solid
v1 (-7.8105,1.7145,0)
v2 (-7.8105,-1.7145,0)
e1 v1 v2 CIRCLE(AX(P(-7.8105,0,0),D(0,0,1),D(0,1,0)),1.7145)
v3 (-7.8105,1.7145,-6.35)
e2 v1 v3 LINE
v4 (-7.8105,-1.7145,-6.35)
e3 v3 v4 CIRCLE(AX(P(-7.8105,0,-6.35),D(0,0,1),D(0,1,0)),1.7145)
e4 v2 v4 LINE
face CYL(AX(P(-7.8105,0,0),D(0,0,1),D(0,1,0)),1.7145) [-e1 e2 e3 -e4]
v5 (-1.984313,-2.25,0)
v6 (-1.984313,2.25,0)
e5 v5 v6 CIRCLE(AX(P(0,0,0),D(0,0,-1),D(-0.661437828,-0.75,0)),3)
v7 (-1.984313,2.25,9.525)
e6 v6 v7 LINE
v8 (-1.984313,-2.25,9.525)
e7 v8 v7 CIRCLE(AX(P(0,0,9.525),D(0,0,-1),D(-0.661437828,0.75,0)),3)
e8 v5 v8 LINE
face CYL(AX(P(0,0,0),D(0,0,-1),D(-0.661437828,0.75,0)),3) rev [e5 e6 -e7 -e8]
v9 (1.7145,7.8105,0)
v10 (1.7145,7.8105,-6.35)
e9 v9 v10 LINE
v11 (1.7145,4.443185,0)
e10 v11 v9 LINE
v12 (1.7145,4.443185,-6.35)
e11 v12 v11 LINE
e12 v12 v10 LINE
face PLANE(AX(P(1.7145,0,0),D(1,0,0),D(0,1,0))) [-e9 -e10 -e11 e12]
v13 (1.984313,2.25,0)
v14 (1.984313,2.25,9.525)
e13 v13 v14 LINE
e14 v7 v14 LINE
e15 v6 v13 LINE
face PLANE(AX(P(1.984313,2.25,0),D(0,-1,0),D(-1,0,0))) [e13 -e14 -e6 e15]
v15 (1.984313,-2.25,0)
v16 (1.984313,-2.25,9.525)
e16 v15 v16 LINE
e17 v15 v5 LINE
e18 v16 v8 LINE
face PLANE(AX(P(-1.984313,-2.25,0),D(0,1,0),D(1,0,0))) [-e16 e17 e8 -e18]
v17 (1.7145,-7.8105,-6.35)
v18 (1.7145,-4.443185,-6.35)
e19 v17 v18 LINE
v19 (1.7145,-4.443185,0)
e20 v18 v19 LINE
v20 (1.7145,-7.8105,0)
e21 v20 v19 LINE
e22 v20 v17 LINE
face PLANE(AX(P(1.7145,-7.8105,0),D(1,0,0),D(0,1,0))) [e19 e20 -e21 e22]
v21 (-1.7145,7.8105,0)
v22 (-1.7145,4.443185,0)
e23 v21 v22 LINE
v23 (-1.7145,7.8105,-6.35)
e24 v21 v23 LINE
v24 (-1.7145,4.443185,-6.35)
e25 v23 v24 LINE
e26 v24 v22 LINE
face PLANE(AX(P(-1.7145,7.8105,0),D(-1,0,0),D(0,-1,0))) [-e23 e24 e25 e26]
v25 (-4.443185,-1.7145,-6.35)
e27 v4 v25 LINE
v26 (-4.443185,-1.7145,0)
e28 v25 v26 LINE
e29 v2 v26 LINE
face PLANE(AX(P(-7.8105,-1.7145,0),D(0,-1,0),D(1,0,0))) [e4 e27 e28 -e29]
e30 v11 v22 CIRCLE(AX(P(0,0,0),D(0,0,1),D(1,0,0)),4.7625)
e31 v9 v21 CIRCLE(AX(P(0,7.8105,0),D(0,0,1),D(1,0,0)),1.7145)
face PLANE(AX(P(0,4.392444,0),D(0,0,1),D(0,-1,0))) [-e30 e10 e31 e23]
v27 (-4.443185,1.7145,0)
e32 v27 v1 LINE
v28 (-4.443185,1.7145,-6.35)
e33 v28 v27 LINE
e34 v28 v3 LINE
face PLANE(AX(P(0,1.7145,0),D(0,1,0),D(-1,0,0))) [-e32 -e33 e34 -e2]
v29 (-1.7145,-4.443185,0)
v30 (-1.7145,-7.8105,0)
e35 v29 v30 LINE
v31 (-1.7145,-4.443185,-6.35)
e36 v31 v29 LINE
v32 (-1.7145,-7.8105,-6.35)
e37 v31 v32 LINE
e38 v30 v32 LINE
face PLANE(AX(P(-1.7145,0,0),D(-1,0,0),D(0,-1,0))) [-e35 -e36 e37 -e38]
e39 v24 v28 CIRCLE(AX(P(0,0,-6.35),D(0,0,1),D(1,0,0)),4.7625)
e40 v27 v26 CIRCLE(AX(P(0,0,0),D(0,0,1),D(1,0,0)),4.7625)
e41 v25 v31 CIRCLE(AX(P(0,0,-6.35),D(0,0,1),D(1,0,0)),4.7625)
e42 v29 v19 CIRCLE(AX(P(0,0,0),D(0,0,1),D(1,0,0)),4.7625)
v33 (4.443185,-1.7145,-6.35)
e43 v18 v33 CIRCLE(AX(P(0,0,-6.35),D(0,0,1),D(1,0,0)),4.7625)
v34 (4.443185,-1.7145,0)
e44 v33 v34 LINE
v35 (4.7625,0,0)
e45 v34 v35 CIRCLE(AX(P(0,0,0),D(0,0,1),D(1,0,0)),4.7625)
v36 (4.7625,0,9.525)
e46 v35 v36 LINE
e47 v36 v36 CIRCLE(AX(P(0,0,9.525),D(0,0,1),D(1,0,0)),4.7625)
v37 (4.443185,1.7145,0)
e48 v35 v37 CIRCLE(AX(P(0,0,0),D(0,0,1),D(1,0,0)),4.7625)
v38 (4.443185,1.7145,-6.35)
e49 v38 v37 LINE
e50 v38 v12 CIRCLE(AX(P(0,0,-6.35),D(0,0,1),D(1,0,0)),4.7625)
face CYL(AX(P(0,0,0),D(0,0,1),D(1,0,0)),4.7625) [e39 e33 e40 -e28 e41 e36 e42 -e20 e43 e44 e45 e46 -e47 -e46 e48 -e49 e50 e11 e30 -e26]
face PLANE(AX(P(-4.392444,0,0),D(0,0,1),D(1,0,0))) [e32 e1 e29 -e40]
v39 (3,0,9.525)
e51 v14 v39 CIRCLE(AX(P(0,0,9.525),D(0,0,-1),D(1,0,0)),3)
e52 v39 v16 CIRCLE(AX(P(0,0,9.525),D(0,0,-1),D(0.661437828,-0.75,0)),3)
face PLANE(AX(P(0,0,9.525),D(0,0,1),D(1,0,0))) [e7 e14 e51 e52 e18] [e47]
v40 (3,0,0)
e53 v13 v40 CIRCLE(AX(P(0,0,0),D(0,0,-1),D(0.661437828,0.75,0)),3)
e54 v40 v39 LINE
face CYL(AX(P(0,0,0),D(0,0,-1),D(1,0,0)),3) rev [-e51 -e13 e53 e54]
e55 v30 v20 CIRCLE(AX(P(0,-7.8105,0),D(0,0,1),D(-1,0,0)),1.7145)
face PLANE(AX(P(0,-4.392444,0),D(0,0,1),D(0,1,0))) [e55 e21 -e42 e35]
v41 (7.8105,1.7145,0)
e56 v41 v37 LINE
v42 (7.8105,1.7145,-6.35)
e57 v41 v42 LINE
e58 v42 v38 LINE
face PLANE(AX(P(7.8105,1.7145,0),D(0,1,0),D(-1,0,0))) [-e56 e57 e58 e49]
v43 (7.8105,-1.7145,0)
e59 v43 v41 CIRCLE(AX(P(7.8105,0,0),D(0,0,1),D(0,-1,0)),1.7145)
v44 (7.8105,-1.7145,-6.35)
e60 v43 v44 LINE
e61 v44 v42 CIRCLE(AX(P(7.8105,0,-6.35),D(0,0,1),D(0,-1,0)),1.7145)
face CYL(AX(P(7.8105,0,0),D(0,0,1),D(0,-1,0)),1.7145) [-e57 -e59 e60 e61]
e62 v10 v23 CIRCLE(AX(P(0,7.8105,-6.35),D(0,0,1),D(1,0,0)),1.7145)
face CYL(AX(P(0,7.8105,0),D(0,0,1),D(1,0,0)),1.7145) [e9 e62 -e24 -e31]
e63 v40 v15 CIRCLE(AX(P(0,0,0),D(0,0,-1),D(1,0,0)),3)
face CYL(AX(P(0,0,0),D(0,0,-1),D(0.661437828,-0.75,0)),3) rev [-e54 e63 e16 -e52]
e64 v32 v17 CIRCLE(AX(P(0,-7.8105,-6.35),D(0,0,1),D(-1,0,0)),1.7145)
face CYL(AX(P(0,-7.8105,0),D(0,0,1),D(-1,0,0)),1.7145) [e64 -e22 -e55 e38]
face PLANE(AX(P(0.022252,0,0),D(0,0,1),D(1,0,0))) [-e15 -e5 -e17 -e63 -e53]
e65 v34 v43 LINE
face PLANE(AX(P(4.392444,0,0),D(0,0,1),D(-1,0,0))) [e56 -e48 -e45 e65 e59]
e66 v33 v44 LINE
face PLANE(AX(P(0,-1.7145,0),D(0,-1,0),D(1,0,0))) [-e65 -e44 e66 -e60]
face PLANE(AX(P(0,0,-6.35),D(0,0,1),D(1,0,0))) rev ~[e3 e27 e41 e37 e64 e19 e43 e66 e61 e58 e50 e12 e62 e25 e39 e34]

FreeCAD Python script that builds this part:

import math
import FreeCAD as App
import Part
import Sketcher
Q = App.Units.Quantity

doc = App.newDocument("Part")
body = doc.addObject("PartDesign::Body", "Body")

sketch1 = body.newObject("Sketcher::SketchObject", "Sketch")
sketch1.AttachmentSupport = (doc.getObject("XY_Plane"), [""])
sketch1.MapMode = "FlatFace"
sketch1.addGeometry(Part.Circle(App.Vector(0, 0, 0), App.Vector(0, 0, 1), 4.8), False)
sketch1.addConstraint(Sketcher.Constraint("Coincident", 0, 3, -1, 1))
sketch1.addConstraint(Sketcher.Constraint("Diameter", 0, Q("0.375 in")))
pad1 = body.newObject("PartDesign::Pad", "Pad")
pad1.Profile = sketch1
pad1.Type = "TwoLengths"
pad1.Length = Q("0.375 in")
pad1.Length2 = Q("0.25 in")

sketch2 = body.newObject("Sketcher::SketchObject", "Sketch001")
sketch2.AttachmentSupport = (doc.getObject("XY_Plane"), [""])
sketch2.MapMode = "FlatFace"
sketch2.addGeometry(Part.ArcOfCircle(Part.Circle(App.Vector(0, 0, 0), App.Vector(0, 0, 1), 3), math.radians(-49), math.radians(0)), False)
sketch2.addGeometry(Part.ArcOfCircle(Part.Circle(App.Vector(0, 0, 0), App.Vector(0, 0, 1), 3), math.radians(0), math.radians(49)), False)
sketch2.addGeometry(Part.LineSegment(App.Vector(2, 2.2, 0), App.Vector(-2, 2.2, 0)), False)
sketch2.addGeometry(Part.ArcOfCircle(Part.Circle(App.Vector(0, 0, 0), App.Vector(0, 0, 1), 3), math.radians(131), math.radians(229)), False)
sketch2.addGeometry(Part.LineSegment(App.Vector(-2, -2.2, 0), App.Vector(2, -2.2, 0)), False)
sketch2.addConstraint(Sketcher.Constraint("Tangent", 0, 2, 1, 1))
sketch2.addConstraint(Sketcher.Constraint("Coincident", 1, 2, 2, 1))
sketch2.addConstraint(Sketcher.Constraint("Coincident", 2, 2, 3, 1))
sketch2.addConstraint(Sketcher.Constraint("Coincident", 3, 2, 4, 1))
sketch2.addConstraint(Sketcher.Constraint("Coincident", 4, 2, 0, 1))
sketch2.addConstraint(Sketcher.Constraint("Horizontal", 2))
sketch2.addConstraint(Sketcher.Constraint("Horizontal", 4))
sketch2.addConstraint(Sketcher.Constraint("Coincident", 0, 3, -1, 1))
sketch2.addConstraint(Sketcher.Constraint("Coincident", 3, 3, -1, 1))
sketch2.addConstraint(Sketcher.Constraint("Equal", 0, 1))
sketch2.addConstraint(Sketcher.Constraint("Equal", 1, 3))
sketch2.addConstraint(Sketcher.Constraint("PointOnObject", 0, 2, -1))
sketch2.addConstraint(Sketcher.Constraint("Vertical", 2, 2, 3, 2))
sketch2.addConstraint(Sketcher.Constraint("Radius", 0, Q("3 mm")))
sketch2.addConstraint(Sketcher.Constraint("DistanceY", -1, 1, 1, 2, Q("2.25 mm")))
pocket1 = body.newObject("PartDesign::Pocket", "Pocket")
pocket1.Profile = sketch2
pocket1.Type = "ThroughAll"
pocket1.Reversed = True
body2 = doc.addObject("PartDesign::Body", "Body001")

sketch3 = body2.newObject("Sketcher::SketchObject", "Sketch002")
sketch3.AttachmentSupport = (doc.getObject("XY_Plane001"), [""])
sketch3.MapMode = "FlatFace"
sketch3.addGeometry(Part.LineSegment(App.Vector(0, 1.7, 0), App.Vector(-7.8, 1.7, 0)), False)
sketch3.addGeometry(Part.ArcOfCircle(Part.Circle(App.Vector(-7.8, 0, 0), App.Vector(0, 0, 1), 1.7), math.radians(90), math.radians(270)), False)
sketch3.addGeometry(Part.LineSegment(App.Vector(-7.8, -1.7, 0), App.Vector(0, -1.7, 0)), False)
sketch3.addGeometry(Part.LineSegment(App.Vector(0, -1.7, 0), App.Vector(0, 1.7, 0)), False)
sketch3.addConstraint(Sketcher.Constraint("Tangent", 0, 2, 1, 1))
sketch3.addConstraint(Sketcher.Constraint("Tangent", 1, 2, 2, 1))
sketch3.addConstraint(Sketcher.Constraint("Coincident", 2, 2, 3, 1))
sketch3.addConstraint(Sketcher.Constraint("Coincident", 3, 2, 0, 1))
sketch3.addConstraint(Sketcher.Constraint("Horizontal", 0))
sketch3.addConstraint(Sketcher.Constraint("Horizontal", 2))
sketch3.addConstraint(Sketcher.Constraint("Vertical", 3))
sketch3.addConstraint(Sketcher.Constraint("Symmetric", 2, 2, 3, 2, -1, 1))
sketch3.addConstraint(Sketcher.Constraint("Radius", 1, Q("0.0675 in")))
sketch3.addConstraint(Sketcher.Constraint("DistanceX", 0, 2, 0, 1, Q("0.3075 in")))
pad2 = body2.newObject("PartDesign::Pad", "Pad001")
pad2.Profile = sketch3
pad2.Length = Q("0.25 in")
pad2.Reversed = True
doc.recompute()

body3 = doc.addObject("PartDesign::Body", "Body002")
body3.BaseFeature = body2
boolean = body.newObject("PartDesign::Boolean", "Boolean")
boolean.Type = "Fuse"
boolean.addObjects([body3])
doc.recompute()

body4 = doc.addObject("PartDesign::Body", "Body003")
body4.BaseFeature = body2
body4.Placement = App.Placement(App.Vector(0, 0, 0), App.Rotation(App.Vector(0, 0, -1), 90))
boolean2 = body.newObject("PartDesign::Boolean", "Boolean001")
boolean2.Type = "Fuse"
boolean2.addObjects([body4])
doc.recompute()

body5 = doc.addObject("PartDesign::Body", "Body004")
body5.BaseFeature = body2
body5.Placement = App.Placement(App.Vector(0, 0, 0), App.Rotation(App.Vector(0, 0, -1), 180))
boolean3 = body.newObject("PartDesign::Boolean", "Boolean002")
boolean3.Type = "Fuse"
boolean3.addObjects([body5])
doc.recompute()

body2.Placement = App.Placement(App.Vector(0, 0, 0), App.Rotation(App.Vector(0, 0, -1), 270))
boolean4 = body.newObject("PartDesign::Boolean", "Boolean003")
boolean4.Type = "Fuse"
boolean4.addObjects([body2])

doc.recompute()
